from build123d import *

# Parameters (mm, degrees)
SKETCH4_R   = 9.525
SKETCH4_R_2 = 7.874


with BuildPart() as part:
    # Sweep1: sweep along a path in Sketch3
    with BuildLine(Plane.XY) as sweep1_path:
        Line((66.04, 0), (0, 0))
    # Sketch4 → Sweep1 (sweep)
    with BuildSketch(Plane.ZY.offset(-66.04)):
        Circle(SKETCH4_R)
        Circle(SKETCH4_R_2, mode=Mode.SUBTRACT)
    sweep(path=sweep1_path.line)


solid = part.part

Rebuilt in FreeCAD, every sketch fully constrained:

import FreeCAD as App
import Part
import Sketcher
Q = App.Units.Quantity

doc = App.newDocument("Part")
body = doc.addObject("PartDesign::Body", "Body")

sketch1 = doc.addObject("Sketcher::SketchObject", "Sketch")
body.addObject(sketch1)
sketch1.AttachmentSupport = (doc.YZ_Plane, [""])
sketch1.MapMode = "FlatFace"
sketch1.AttachmentOffset = App.Placement(App.Vector(0, 0, 2.6 * 25.4), App.Rotation())
sketch1.addGeometry([
    Part.Circle(App.Vector(0, 0, 0), App.Vector(0, 0, 1), 10),
    Part.Circle(App.Vector(0, 0, 0), App.Vector(0, 0, 1), 8),
], False)
sketch1.addConstraint([
    Sketcher.Constraint("Coincident", 0, 3, -1, 1),
    Sketcher.Constraint("Coincident", 1, 3, -1, 1),
    Sketcher.Constraint("Diameter", 0, Q("0.75 in")),
    Sketcher.Constraint("Diameter", 1, Q("0.62 in")),
])

sketch2 = doc.addObject("Sketcher::SketchObject", "Sketch001")
body.addObject(sketch2)
sketch2.AttachmentSupport = (doc.XY_Plane, [""])
sketch2.MapMode = "FlatFace"
sketch2.addGeometry(Part.LineSegment(App.Vector(66, 0, 0), App.Vector(0, 0, 0)), False)
sketch2.addConstraint([
    Sketcher.Constraint("Horizontal", 0),
    Sketcher.Constraint("Coincident", 0, 2, -1, 1),
    Sketcher.Constraint("DistanceX", 0, 2, 0, 1, Q("2.6 in")),
])
doc.recompute()

additivepipe = doc.addObject("PartDesign::AdditivePipe", "AdditivePipe")
body.addObject(additivepipe)
additivepipe.Profile = sketch1
additivepipe.Spine = (sketch2, ["Edge1"])

doc.recompute()
